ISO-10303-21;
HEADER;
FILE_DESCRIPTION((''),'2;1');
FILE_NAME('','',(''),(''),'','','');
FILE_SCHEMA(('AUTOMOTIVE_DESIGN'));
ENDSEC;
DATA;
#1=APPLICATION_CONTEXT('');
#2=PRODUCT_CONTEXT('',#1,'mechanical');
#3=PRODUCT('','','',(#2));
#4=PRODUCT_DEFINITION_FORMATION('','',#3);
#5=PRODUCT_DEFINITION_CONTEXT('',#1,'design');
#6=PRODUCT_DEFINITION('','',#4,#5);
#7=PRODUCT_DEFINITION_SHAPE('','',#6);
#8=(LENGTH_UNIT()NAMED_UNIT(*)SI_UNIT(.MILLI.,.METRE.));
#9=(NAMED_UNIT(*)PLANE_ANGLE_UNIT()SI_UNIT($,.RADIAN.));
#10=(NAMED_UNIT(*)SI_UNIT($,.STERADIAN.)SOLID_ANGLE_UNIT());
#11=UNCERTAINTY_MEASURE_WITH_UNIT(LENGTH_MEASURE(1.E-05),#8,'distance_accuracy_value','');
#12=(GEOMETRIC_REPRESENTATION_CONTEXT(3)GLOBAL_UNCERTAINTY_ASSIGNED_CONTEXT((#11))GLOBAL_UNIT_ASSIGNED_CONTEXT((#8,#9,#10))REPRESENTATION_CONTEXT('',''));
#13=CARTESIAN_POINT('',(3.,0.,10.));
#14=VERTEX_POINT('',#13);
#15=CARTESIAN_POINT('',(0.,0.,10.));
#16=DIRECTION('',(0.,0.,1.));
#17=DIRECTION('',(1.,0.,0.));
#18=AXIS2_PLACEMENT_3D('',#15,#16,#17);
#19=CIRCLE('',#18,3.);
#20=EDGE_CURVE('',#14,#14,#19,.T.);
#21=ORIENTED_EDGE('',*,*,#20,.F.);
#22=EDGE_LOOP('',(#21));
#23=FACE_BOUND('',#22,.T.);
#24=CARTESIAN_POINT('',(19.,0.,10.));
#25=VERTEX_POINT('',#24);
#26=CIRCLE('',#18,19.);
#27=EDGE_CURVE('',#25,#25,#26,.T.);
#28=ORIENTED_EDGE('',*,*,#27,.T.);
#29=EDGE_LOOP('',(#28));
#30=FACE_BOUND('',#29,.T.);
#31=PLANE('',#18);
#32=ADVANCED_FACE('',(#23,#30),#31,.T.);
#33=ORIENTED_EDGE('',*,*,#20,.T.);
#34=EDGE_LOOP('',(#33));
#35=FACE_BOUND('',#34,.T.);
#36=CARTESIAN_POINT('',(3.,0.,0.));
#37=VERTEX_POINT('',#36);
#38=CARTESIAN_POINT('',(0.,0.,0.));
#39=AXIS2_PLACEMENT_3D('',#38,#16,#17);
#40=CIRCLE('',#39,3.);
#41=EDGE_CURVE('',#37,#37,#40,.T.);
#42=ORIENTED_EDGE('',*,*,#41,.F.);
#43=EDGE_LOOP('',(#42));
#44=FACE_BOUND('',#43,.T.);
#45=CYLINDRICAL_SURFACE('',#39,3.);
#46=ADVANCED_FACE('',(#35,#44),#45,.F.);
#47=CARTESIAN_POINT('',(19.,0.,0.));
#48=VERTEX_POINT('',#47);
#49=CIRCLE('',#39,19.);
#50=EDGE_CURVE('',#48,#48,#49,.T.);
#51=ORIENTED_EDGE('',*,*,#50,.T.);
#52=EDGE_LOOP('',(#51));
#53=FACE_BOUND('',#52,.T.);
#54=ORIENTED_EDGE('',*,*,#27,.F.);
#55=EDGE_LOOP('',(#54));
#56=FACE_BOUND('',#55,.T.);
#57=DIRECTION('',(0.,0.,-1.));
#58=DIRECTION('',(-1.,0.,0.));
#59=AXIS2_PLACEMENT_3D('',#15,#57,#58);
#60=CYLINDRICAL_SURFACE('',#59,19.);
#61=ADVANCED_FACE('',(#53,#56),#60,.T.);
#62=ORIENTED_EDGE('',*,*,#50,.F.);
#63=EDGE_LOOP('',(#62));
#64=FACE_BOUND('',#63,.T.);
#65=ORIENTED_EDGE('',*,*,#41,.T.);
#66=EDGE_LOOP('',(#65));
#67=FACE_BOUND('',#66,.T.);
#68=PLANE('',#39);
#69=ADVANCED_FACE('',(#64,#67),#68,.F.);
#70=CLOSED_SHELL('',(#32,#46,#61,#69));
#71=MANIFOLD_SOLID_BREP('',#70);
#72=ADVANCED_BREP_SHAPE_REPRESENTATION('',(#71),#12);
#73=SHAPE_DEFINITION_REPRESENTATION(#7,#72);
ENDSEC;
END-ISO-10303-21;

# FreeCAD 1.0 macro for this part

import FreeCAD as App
import Part
import Sketcher
Q = App.Units.Quantity

doc = App.newDocument("Part")
params = doc.addObject("Spreadsheet::Sheet", "Params")
for row, (alias, value) in enumerate([
    ("sketch1_diameter", "38 mm"),
    ("pad1_length", "10 mm"),
    ("sketch2_diameter", "6 mm"),
    ("pocket1_length", "10 mm"),
], start=1):
    params.set(f"A{row}", alias)
    params.set(f"B{row}", "=" + value)
    params.setAlias(f"B{row}", alias)

body = doc.addObject("PartDesign::Body", "Body")

# Sketch on XY plane
sketch1 = body.newObject("Sketcher::SketchObject", "Sketch")
sketch1.AttachmentSupport = (doc.getObject("XY_Plane"), [""])
sketch1.MapMode = "FlatFace"
sketch1.addGeometry(Part.Circle(App.Vector(0, 0, 0), App.Vector(0, 0, 1), 19), False)
sketch1.addConstraint(Sketcher.Constraint("Coincident", 0, 3, -1, 1))
sketch1.addConstraint(Sketcher.Constraint("Diameter", 0, Q("38 mm")))
sketch1.setExpression("Constraints[1]", "Params.sketch1_diameter")
pad1 = body.newObject("PartDesign::Pad", "Pad")
pad1.Profile = sketch1
pad1.setExpression("Length", "Params.pad1_length")

# Sketch on XY plane
sketch2 = body.newObject("Sketcher::SketchObject", "Sketch001")
sketch2.AttachmentSupport = (doc.getObject("XY_Plane"), [""])
sketch2.MapMode = "FlatFace"
sketch2.AttachmentOffset = App.Placement(App.Vector(0, 0, 10), App.Rotation())
sketch2.addGeometry(Part.Circle(App.Vector(0, 0, 0), App.Vector(0, 0, 1), 3), False)
sketch2.addConstraint(Sketcher.Constraint("Coincident", 0, 3, -1, 1))
sketch2.addConstraint(Sketcher.Constraint("Diameter", 0, Q("6 mm")))
sketch2.setExpression("Constraints[1]", "Params.sketch2_diameter")
pocket1 = body.newObject("PartDesign::Pocket", "Pocket")
pocket1.Profile = sketch2
pocket1.setExpression("Length", "Params.pocket1_length")

doc.recompute()
